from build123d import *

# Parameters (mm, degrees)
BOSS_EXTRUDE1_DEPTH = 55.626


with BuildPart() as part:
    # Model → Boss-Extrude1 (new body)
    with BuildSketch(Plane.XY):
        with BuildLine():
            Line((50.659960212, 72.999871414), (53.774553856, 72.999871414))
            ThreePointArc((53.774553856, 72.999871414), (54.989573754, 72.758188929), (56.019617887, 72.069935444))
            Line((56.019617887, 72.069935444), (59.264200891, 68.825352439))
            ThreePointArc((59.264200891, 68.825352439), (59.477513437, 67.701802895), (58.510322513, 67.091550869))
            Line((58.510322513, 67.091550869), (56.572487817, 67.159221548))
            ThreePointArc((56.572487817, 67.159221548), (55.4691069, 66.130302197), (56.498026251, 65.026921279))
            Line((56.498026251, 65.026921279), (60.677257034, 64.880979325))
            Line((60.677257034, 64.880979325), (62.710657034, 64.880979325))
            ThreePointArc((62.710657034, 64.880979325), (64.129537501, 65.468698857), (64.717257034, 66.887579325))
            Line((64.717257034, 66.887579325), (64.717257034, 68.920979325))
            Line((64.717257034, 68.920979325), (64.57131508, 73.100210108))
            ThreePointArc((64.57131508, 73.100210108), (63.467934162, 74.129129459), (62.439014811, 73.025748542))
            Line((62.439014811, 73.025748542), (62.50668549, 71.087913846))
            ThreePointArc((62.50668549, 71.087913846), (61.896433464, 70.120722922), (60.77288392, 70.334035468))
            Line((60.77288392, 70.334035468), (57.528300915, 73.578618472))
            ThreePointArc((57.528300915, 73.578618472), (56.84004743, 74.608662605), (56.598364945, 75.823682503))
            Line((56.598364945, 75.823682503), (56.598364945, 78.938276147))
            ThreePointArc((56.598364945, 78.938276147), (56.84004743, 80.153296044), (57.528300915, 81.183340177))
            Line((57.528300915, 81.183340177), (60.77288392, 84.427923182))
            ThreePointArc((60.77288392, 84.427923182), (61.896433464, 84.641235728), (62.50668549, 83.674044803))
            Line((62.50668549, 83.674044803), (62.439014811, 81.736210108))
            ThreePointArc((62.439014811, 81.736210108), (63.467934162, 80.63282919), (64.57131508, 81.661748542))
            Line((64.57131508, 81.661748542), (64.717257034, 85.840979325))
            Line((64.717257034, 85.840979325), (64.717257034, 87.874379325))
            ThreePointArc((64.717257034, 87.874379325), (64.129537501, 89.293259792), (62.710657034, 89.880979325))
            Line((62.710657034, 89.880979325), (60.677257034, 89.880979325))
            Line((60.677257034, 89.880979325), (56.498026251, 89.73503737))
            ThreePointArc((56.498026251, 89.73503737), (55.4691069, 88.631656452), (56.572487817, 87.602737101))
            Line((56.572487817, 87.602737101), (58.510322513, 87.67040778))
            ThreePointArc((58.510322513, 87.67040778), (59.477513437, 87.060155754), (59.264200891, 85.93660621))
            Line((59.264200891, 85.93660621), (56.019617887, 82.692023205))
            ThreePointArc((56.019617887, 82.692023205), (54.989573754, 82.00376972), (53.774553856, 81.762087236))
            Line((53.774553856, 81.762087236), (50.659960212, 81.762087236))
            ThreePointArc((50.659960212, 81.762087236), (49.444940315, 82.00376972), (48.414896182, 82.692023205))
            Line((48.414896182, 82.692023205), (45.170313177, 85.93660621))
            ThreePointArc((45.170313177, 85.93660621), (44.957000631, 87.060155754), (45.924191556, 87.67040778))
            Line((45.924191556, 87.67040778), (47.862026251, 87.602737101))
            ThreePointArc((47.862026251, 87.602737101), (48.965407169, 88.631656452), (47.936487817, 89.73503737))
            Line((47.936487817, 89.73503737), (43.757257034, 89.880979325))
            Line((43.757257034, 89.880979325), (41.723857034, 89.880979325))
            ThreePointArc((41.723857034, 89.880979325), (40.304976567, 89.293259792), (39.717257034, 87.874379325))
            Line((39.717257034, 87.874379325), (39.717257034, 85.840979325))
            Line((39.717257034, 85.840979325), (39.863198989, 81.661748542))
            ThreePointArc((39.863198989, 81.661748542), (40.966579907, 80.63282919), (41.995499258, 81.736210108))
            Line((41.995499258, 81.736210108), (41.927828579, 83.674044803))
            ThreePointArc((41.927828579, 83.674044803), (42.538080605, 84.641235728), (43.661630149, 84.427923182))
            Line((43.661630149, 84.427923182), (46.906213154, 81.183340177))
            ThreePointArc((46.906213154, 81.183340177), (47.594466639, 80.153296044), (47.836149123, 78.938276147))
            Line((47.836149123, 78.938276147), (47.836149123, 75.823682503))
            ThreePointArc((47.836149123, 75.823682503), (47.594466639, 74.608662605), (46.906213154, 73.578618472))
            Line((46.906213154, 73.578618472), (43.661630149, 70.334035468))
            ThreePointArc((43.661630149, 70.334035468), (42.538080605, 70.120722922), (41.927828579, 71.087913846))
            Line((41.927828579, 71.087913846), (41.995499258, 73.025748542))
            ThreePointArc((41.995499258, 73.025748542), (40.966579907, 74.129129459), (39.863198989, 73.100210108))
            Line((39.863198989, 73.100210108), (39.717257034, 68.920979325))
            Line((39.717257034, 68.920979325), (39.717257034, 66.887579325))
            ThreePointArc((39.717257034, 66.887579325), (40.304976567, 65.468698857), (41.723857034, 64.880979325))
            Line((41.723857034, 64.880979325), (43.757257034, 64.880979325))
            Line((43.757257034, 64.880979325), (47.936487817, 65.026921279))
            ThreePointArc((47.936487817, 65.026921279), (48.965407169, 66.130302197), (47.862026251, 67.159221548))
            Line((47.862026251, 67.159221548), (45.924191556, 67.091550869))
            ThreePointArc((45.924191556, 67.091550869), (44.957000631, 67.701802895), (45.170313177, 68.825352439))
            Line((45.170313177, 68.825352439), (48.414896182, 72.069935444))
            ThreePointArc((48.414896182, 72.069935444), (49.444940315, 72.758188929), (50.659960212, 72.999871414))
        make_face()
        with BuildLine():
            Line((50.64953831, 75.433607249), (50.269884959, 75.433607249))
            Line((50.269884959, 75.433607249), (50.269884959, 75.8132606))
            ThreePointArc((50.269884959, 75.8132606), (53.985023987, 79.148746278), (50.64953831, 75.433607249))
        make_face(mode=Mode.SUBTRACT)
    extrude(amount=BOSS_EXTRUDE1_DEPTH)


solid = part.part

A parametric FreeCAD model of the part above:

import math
import FreeCAD as App
import Part
import Sketcher

V = App.Vector
Q = App.Units.Quantity

doc = App.newDocument("Part")
body = doc.addObject("PartDesign::Body", "Body")

sketch1 = body.newObject("Sketcher::SketchObject", "Sketch")
sketch1.AttachmentSupport = (doc.getObject("XY_Plane"), [""])
sketch1.MapMode = "FlatFace"
sketch1.addGeometry(Part.LineSegment(V(50.65996, 72.999871, 0), V(53.774554, 72.999871, 0)), False)
sketch1.addGeometry(Part.ArcOfCircle(Part.Circle(V(53.774554, 69.824871, 0), V(0, 0, 1), 3.175), math.radians(45), math.radians(90)), False)
sketch1.addGeometry(Part.LineSegment(V(56.019618, 72.069935, 0), V(59.264201, 68.825352, 0)), False)
sketch1.addGeometry(Part.ArcOfCircle(Part.Circle(V(58.54578, 68.106932, 0), V(0, 0, 1), 1.016), math.radians(-92), math.radians(45)), False)
sketch1.addGeometry(Part.LineSegment(V(58.510323, 67.091551, 0), V(56.572488, 67.159222, 0)), False)
sketch1.addGeometry(Part.ArcOfCircle(Part.Circle(V(56.535257, 66.093071, 0), V(0, 0, 1), 1.0668), math.radians(88), math.radians(268)), False)
sketch1.addGeometry(Part.LineSegment(V(56.498026, 65.026921, 0), V(60.677257, 64.880979, 0)), False)
sketch1.addGeometry(Part.LineSegment(V(60.677257, 64.880979, 0), V(62.710657, 64.880979, 0)), False)
sketch1.addGeometry(Part.ArcOfCircle(Part.Circle(V(62.710657, 66.887579, 0), V(0, 0, 1), 2.0066), math.radians(-90), math.radians(0)), False)
sketch1.addGeometry(Part.LineSegment(V(64.717257, 66.887579, 0), V(64.717257, 68.920979, 0)), False)
sketch1.addGeometry(Part.LineSegment(V(64.717257, 68.920979, 0), V(64.571315, 73.10021, 0)), False)
sketch1.addGeometry(Part.ArcOfCircle(Part.Circle(V(63.505165, 73.062979, 0), V(0, 0, 1), 1.0668), math.radians(2), math.radians(182)), False)
sketch1.addGeometry(Part.LineSegment(V(62.439015, 73.025749, 0), V(62.506685, 71.087914, 0)), False)
sketch1.addGeometry(Part.ArcOfCircle(Part.Circle(V(61.491304, 71.052456, 0), V(0, 0, 1), 1.016), math.radians(-135), math.radians(2)), False)
sketch1.addGeometry(Part.LineSegment(V(60.772884, 70.334035, 0), V(57.528301, 73.578618, 0)), False)
sketch1.addGeometry(Part.ArcOfCircle(Part.Circle(V(59.773365, 75.823683, 0), V(0, 0, 1), 3.175), math.radians(-180), math.radians(-135)), False)
sketch1.addGeometry(Part.LineSegment(V(56.598365, 75.823683, 0), V(56.598365, 78.938276, 0)), False)
sketch1.addGeometry(Part.ArcOfCircle(Part.Circle(V(59.773365, 78.938276, 0), V(0, 0, 1), 3.175), math.radians(135), math.radians(180)), False)
sketch1.addGeometry(Part.LineSegment(V(57.528301, 81.18334, 0), V(60.772884, 84.427923, 0)), False)
sketch1.addGeometry(Part.ArcOfCircle(Part.Circle(V(61.491304, 83.709503, 0), V(0, 0, 1), 1.016), math.radians(-2), math.radians(135)), False)
sketch1.addGeometry(Part.LineSegment(V(62.506685, 83.674045, 0), V(62.439015, 81.73621, 0)), False)
sketch1.addGeometry(Part.ArcOfCircle(Part.Circle(V(63.505165, 81.698979, 0), V(0, 0, 1), 1.0668), math.radians(178), math.radians(358)), False)
sketch1.addGeometry(Part.LineSegment(V(64.571315, 81.661749, 0), V(64.717257, 85.840979, 0)), False)
sketch1.addGeometry(Part.LineSegment(V(64.717257, 85.840979, 0), V(64.717257, 87.874379, 0)), False)
sketch1.addGeometry(Part.ArcOfCircle(Part.Circle(V(62.710657, 87.874379, 0), V(0, 0, 1), 2.0066), math.radians(0), math.radians(90)), False)
sketch1.addGeometry(Part.LineSegment(V(62.710657, 89.880979, 0), V(60.677257, 89.880979, 0)), False)
sketch1.addGeometry(Part.LineSegment(V(60.677257, 89.880979, 0), V(56.498026, 89.735037, 0)), False)
sketch1.addGeometry(Part.ArcOfCircle(Part.Circle(V(56.535257, 88.668887, 0), V(0, 0, 1), 1.0668), math.radians(92), math.radians(272)), False)
sketch1.addGeometry(Part.LineSegment(V(56.572488, 87.602737, 0), V(58.510323, 87.670408, 0)), False)
sketch1.addGeometry(Part.ArcOfCircle(Part.Circle(V(58.54578, 86.655027, 0), V(0, 0, 1), 1.016), math.radians(-45), math.radians(92)), False)
sketch1.addGeometry(Part.LineSegment(V(59.264201, 85.936606, 0), V(56.019618, 82.692023, 0)), False)
sketch1.addGeometry(Part.ArcOfCircle(Part.Circle(V(53.774554, 84.937087, 0), V(0, 0, 1), 3.175), math.radians(-90), math.radians(-45)), False)
sketch1.addGeometry(Part.LineSegment(V(53.774554, 81.762087, 0), V(50.65996, 81.762087, 0)), False)
sketch1.addGeometry(Part.ArcOfCircle(Part.Circle(V(50.65996, 84.937087, 0), V(0, 0, 1), 3.175), math.radians(-135), math.radians(-90)), False)
sketch1.addGeometry(Part.LineSegment(V(48.414896, 82.692023, 0), V(45.170313, 85.936606, 0)), False)
sketch1.addGeometry(Part.ArcOfCircle(Part.Circle(V(45.888734, 86.655027, 0), V(0, 0, 1), 1.016), math.radians(88), math.radians(225)), False)
sketch1.addGeometry(Part.LineSegment(V(45.924192, 87.670408, 0), V(47.862026, 87.602737, 0)), False)
sketch1.addGeometry(Part.ArcOfCircle(Part.Circle(V(47.899257, 88.668887, 0), V(0, 0, 1), 1.0668), math.radians(-92), math.radians(88)), False)
sketch1.addGeometry(Part.LineSegment(V(47.936488, 89.735037, 0), V(43.757257, 89.880979, 0)), False)
sketch1.addGeometry(Part.LineSegment(V(43.757257, 89.880979, 0), V(41.723857, 89.880979, 0)), False)
sketch1.addGeometry(Part.ArcOfCircle(Part.Circle(V(41.723857, 87.874379, 0), V(0, 0, 1), 2.0066), math.radians(90), math.radians(180)), False)
sketch1.addGeometry(Part.LineSegment(V(39.717257, 87.874379, 0), V(39.717257, 85.840979, 0)), False)
sketch1.addGeometry(Part.LineSegment(V(39.717257, 85.840979, 0), V(39.863199, 81.661749, 0)), False)
sketch1.addGeometry(Part.ArcOfCircle(Part.Circle(V(40.929349, 81.698979, 0), V(0, 0, 1), 1.0668), math.radians(-178), math.radians(2)), False)
sketch1.addGeometry(Part.LineSegment(V(41.995499, 81.73621, 0), V(41.927829, 83.674045, 0)), False)
sketch1.addGeometry(Part.ArcOfCircle(Part.Circle(V(42.94321, 83.709503, 0), V(0, 0, 1), 1.016), math.radians(45), math.radians(182)), False)
sketch1.addGeometry(Part.LineSegment(V(43.66163, 84.427923, 0), V(46.906213, 81.18334, 0)), False)
sketch1.addGeometry(Part.ArcOfCircle(Part.Circle(V(44.661149, 78.938276, 0), V(0, 0, 1), 3.175), math.radians(0), math.radians(45)), False)
sketch1.addGeometry(Part.LineSegment(V(47.836149, 78.938276, 0), V(47.836149, 75.823683, 0)), False)
sketch1.addGeometry(Part.ArcOfCircle(Part.Circle(V(44.661149, 75.823683, 0), V(0, 0, 1), 3.175), math.radians(-45), math.radians(0)), False)
sketch1.addGeometry(Part.LineSegment(V(46.906213, 73.578618, 0), V(43.66163, 70.334035, 0)), False)
sketch1.addGeometry(Part.ArcOfCircle(Part.Circle(V(42.94321, 71.052456, 0), V(0, 0, 1), 1.016), math.radians(178), math.radians(315)), False)
sketch1.addGeometry(Part.LineSegment(V(41.927829, 71.087914, 0), V(41.995499, 73.025749, 0)), False)
sketch1.addGeometry(Part.ArcOfCircle(Part.Circle(V(40.929349, 73.062979, 0), V(0, 0, 1), 1.0668), math.radians(-2), math.radians(178)), False)
sketch1.addGeometry(Part.LineSegment(V(39.863199, 73.10021, 0), V(39.717257, 68.920979, 0)), False)
sketch1.addGeometry(Part.LineSegment(V(39.717257, 68.920979, 0), V(39.717257, 66.887579, 0)), False)
sketch1.addGeometry(Part.ArcOfCircle(Part.Circle(V(41.723857, 66.887579, 0), V(0, 0, 1), 2.0066), math.radians(180), math.radians(270)), False)
sketch1.addGeometry(Part.LineSegment(V(41.723857, 64.880979, 0), V(43.757257, 64.880979, 0)), False)
sketch1.addGeometry(Part.LineSegment(V(43.757257, 64.880979, 0), V(47.936488, 65.026921, 0)), False)
sketch1.addGeometry(Part.ArcOfCircle(Part.Circle(V(47.899257, 66.093071, 0), V(0, 0, 1), 1.0668), math.radians(-88), math.radians(92)), False)
sketch1.addGeometry(Part.LineSegment(V(47.862026, 67.159222, 0), V(45.924192, 67.091551, 0)), False)
sketch1.addGeometry(Part.ArcOfCircle(Part.Circle(V(45.888734, 68.106932, 0), V(0, 0, 1), 1.016), math.radians(135), math.radians(272)), False)
sketch1.addGeometry(Part.LineSegment(V(45.170313, 68.825352, 0), V(48.414896, 72.069935, 0)), False)
sketch1.addGeometry(Part.ArcOfCircle(Part.Circle(V(50.65996, 69.824871, 0), V(0, 0, 1), 3.175), math.radians(90), math.radians(135)), False)
sketch1.addGeometry(Part.ArcOfCircle(Part.Circle(V(52.217257, 77.380979, 0), V(0, 0, 1), 2.5), math.radians(-128.835568), math.radians(218.835568)), False)
sketch1.addGeometry(Part.LineSegment(V(50.649538, 75.433607, 0), V(50.269885, 75.433607, 0)), False)
sketch1.addGeometry(Part.LineSegment(V(50.269885, 75.433607, 0), V(50.269885, 75.813261, 0)), False)
sketch1.addConstraint(Sketcher.Constraint("Tangent", 0, 2, 1, 2))
sketch1.addConstraint(Sketcher.Constraint("Tangent", 1, 1, 2, 1))
sketch1.addConstraint(Sketcher.Constraint("Tangent", 2, 2, 3, 2))
sketch1.addConstraint(Sketcher.Constraint("Tangent", 3, 1, 4, 1))
sketch1.addConstraint(Sketcher.Constraint("Tangent", 4, 2, 5, 1))
sketch1.addConstraint(Sketcher.Constraint("Tangent", 5, 2, 6, 1))
sketch1.addConstraint(Sketcher.Constraint("Coincident", 6, 2, 7, 1))
sketch1.addConstraint(Sketcher.Constraint("Tangent", 7, 2, 8, 1))
sketch1.addConstraint(Sketcher.Constraint("Tangent", 8, 2, 9, 1))
sketch1.addConstraint(Sketcher.Constraint("Coincident", 9, 2, 10, 1))
sketch1.addConstraint(Sketcher.Constraint("Tangent", 10, 2, 11, 1))
sketch1.addConstraint(Sketcher.Constraint("Tangent", 11, 2, 12, 1))
sketch1.addConstraint(Sketcher.Constraint("Tangent", 12, 2, 13, 2))
sketch1.addConstraint(Sketcher.Constraint("Tangent", 13, 1, 14, 1))
sketch1.addConstraint(Sketcher.Constraint("Tangent", 14, 2, 15, 2))
sketch1.addConstraint(Sketcher.Constraint("Tangent", 15, 1, 16, 1))
sketch1.addConstraint(Sketcher.Constraint("Tangent", 16, 2, 17, 2))
sketch1.addConstraint(Sketcher.Constraint("Tangent", 17, 1, 18, 1))
sketch1.addConstraint(Sketcher.Constraint("Tangent", 18, 2, 19, 2))
sketch1.addConstraint(Sketcher.Constraint("Tangent", 19, 1, 20, 1))
sketch1.addConstraint(Sketcher.Constraint("Tangent", 20, 2, 21, 1))
sketch1.addConstraint(Sketcher.Constraint("Tangent", 21, 2, 22, 1))
sketch1.addConstraint(Sketcher.Constraint("Coincident", 22, 2, 23, 1))
sketch1.addConstraint(Sketcher.Constraint("Tangent", 23, 2, 24, 1))
sketch1.addConstraint(Sketcher.Constraint("Tangent", 24, 2, 25, 1))
sketch1.addConstraint(Sketcher.Constraint("Coincident", 25, 2, 26, 1))
sketch1.addConstraint(Sketcher.Constraint("Tangent", 26, 2, 27, 1))
sketch1.addConstraint(Sketcher.Constraint("Tangent", 27, 2, 28, 1))
sketch1.addConstraint(Sketcher.Constraint("Tangent", 28, 2, 29, 2))
sketch1.addConstraint(Sketcher.Constraint("Tangent", 29, 1, 30, 1))
sketch1.addConstraint(Sketcher.Constraint("Tangent", 30, 2, 31, 2))
sketch1.addConstraint(Sketcher.Constraint("Tangent", 31, 1, 32, 1))
sketch1.addConstraint(Sketcher.Constraint("Tangent", 32, 2, 33, 2))
sketch1.addConstraint(Sketcher.Constraint("Tangent", 33, 1, 34, 1))
sketch1.addConstraint(Sketcher.Constraint("Tangent", 34, 2, 35, 2))
sketch1.addConstraint(Sketcher.Constraint("Tangent", 35, 1, 36, 1))
sketch1.addConstraint(Sketcher.Constraint("Tangent", 36, 2, 37, 1))
sketch1.addConstraint(Sketcher.Constraint("Tangent", 37, 2, 38, 1))
sketch1.addConstraint(Sketcher.Constraint("Coincident", 38, 2, 39, 1))
sketch1.addConstraint(Sketcher.Constraint("Tangent", 39, 2, 40, 1))
sketch1.addConstraint(Sketcher.Constraint("Tangent", 40, 2, 41, 1))
sketch1.addConstraint(Sketcher.Constraint("Coincident", 41, 2, 42, 1))
sketch1.addConstraint(Sketcher.Constraint("Tangent", 42, 2, 43, 1))
sketch1.addConstraint(Sketcher.Constraint("Tangent", 43, 2, 44, 1))
sketch1.addConstraint(Sketcher.Constraint("Tangent", 44, 2, 45, 2))
sketch1.addConstraint(Sketcher.Constraint("Tangent", 45, 1, 46, 1))
sketch1.addConstraint(Sketcher.Constraint("Tangent", 46, 2, 47, 2))
sketch1.addConstraint(Sketcher.Constraint("Tangent", 47, 1, 48, 1))
sketch1.addConstraint(Sketcher.Constraint("Tangent", 48, 2, 49, 2))
sketch1.addConstraint(Sketcher.Constraint("Tangent", 49, 1, 50, 1))
sketch1.addConstraint(Sketcher.Constraint("Tangent", 50, 2, 51, 2))
sketch1.addConstraint(Sketcher.Constraint("Tangent", 51, 1, 52, 1))
sketch1.addConstraint(Sketcher.Constraint("Tangent", 52, 2, 53, 1))
sketch1.addConstraint(Sketcher.Constraint("Tangent", 53, 2, 54, 1))
sketch1.addConstraint(Sketcher.Constraint("Coincident", 54, 2, 55, 1))
sketch1.addConstraint(Sketcher.Constraint("Tangent", 55, 2, 56, 1))
sketch1.addConstraint(Sketcher.Constraint("Tangent", 56, 2, 57, 1))
sketch1.addConstraint(Sketcher.Constraint("Coincident", 57, 2, 58, 1))
sketch1.addConstraint(Sketcher.Constraint("Tangent", 58, 2, 59, 1))
sketch1.addConstraint(Sketcher.Constraint("Tangent", 59, 2, 60, 1))
sketch1.addConstraint(Sketcher.Constraint("Tangent", 60, 2, 61, 2))
sketch1.addConstraint(Sketcher.Constraint("Tangent", 61, 1, 62, 1))
sketch1.addConstraint(Sketcher.Constraint("Tangent", 62, 2, 63, 2))
sketch1.addConstraint(Sketcher.Constraint("Tangent", 63, 1, 0, 1))
sketch1.addConstraint(Sketcher.Constraint("Coincident", 64, 1, 65, 1))
sketch1.addConstraint(Sketcher.Constraint("Coincident", 65, 2, 66, 1))
sketch1.addConstraint(Sketcher.Constraint("Coincident", 66, 2, 64, 2))
sketch1.addConstraint(Sketcher.Constraint("Horizontal", 0))
sketch1.addConstraint(Sketcher.Constraint("Horizontal", 7))
sketch1.addConstraint(Sketcher.Constraint("Vertical", 9))
sketch1.addConstraint(Sketcher.Constraint("Vertical", 16))
sketch1.addConstraint(Sketcher.Constraint("Vertical", 23))
sketch1.addConstraint(Sketcher.Constraint("Horizontal", 25))
sketch1.addConstraint(Sketcher.Constraint("Horizontal", 32))
sketch1.addConstraint(Sketcher.Constraint("Horizontal", 39))
sketch1.addConstraint(Sketcher.Constraint("Vertical", 41))
sketch1.addConstraint(Sketcher.Constraint("Vertical", 48))
sketch1.addConstraint(Sketcher.Constraint("Vertical", 55))
sketch1.addConstraint(Sketcher.Constraint("Horizontal", 57))
sketch1.addConstraint(Sketcher.Constraint("Horizontal", 65))
sketch1.addConstraint(Sketcher.Constraint("Vertical", 66))
sketch1.addConstraint(Sketcher.Constraint("Equal", 5, 11))
sketch1.addConstraint(Sketcher.Constraint("Equal", 3, 13))
sketch1.addConstraint(Sketcher.Constraint("Equal", 1, 15))
sketch1.addConstraint(Sketcher.Constraint("Equal", 15, 17))
sketch1.addConstraint(Sketcher.Constraint("Equal", 13, 19))
sketch1.addConstraint(Sketcher.Constraint("Equal", 11, 21))
sketch1.addConstraint(Sketcher.Constraint("Equal", 8, 24))
sketch1.addConstraint(Sketcher.Constraint("Equal", 21, 27))
sketch1.addConstraint(Sketcher.Constraint("Equal", 19, 29))
sketch1.addConstraint(Sketcher.Constraint("Equal", 17, 31))
sketch1.addConstraint(Sketcher.Constraint("Equal", 31, 33))
sketch1.addConstraint(Sketcher.Constraint("Equal", 29, 35))
sketch1.addConstraint(Sketcher.Constraint("Equal", 27, 37))
sketch1.addConstraint(Sketcher.Constraint("Equal", 24, 40))
sketch1.addConstraint(Sketcher.Constraint("Equal", 37, 43))
sketch1.addConstraint(Sketcher.Constraint("Equal", 35, 45))
sketch1.addConstraint(Sketcher.Constraint("Equal", 33, 47))
sketch1.addConstraint(Sketcher.Constraint("Equal", 47, 49))
sketch1.addConstraint(Sketcher.Constraint("Equal", 45, 51))
sketch1.addConstraint(Sketcher.Constraint("Equal", 43, 53))
sketch1.addConstraint(Sketcher.Constraint("Equal", 40, 56))
sketch1.addConstraint(Sketcher.Constraint("Equal", 53, 59))
sketch1.addConstraint(Sketcher.Constraint("Equal", 51, 61))
sketch1.addConstraint(Sketcher.Constraint("Equal", 49, 63))
sketch1.addConstraint(Sketcher.Constraint("Parallel", 4, 6))
sketch1.addConstraint(Sketcher.Constraint("Parallel", 10, 12))
sketch1.addConstraint(Sketcher.Constraint("Parallel", 2, 14))
sketch1.addConstraint(Sketcher.Constraint("Perpendicular", 14, 18))
sketch1.addConstraint(Sketcher.Constraint("Perpendicular", 6, 20))
sketch1.addConstraint(Sketcher.Constraint("Parallel", 20, 22))
sketch1.addConstraint(Sketcher.Constraint("Perpendicular", 12, 26))
sketch1.addConstraint(Sketcher.Constraint("Parallel", 26, 28))
sketch1.addConstraint(Sketcher.Constraint("Parallel", 18, 30))
sketch1.addConstraint(Sketcher.Constraint("Perpendicular", 30, 34))
sketch1.addConstraint(Sketcher.Constraint("Perpendicular", 22, 36))
sketch1.addConstraint(Sketcher.Constraint("Parallel", 36, 38))
sketch1.addConstraint(Sketcher.Constraint("Perpendicular", 28, 42))
sketch1.addConstraint(Sketcher.Constraint("Parallel", 42, 44))
sketch1.addConstraint(Sketcher.Constraint("Parallel", 34, 46))
sketch1.addConstraint(Sketcher.Constraint("Perpendicular", 46, 50))
sketch1.addConstraint(Sketcher.Constraint("Perpendicular", 38, 52))
sketch1.addConstraint(Sketcher.Constraint("Parallel", 52, 54))
sketch1.addConstraint(Sketcher.Constraint("Perpendicular", 44, 58))
sketch1.addConstraint(Sketcher.Constraint("Parallel", 58, 60))
sketch1.addConstraint(Sketcher.Constraint("Parallel", 50, 62))
sketch1.addConstraint(Sketcher.Constraint("Horizontal", 29, 3, 35, 3))
sketch1.addConstraint(Sketcher.Constraint("Horizontal", 27, 3, 37, 3))
sketch1.addConstraint(Sketcher.Constraint("Horizontal", 24, 3, 40, 3))
sketch1.addConstraint(Sketcher.Constraint("Horizontal", 21, 3, 43, 3))
sketch1.addConstraint(Sketcher.Constraint("Horizontal", 19, 3, 45, 3))
sketch1.addConstraint(Sketcher.Constraint("Horizontal", 17, 3, 47, 3))
sketch1.addConstraint(Sketcher.Constraint("Horizontal", 15, 3, 49, 3))
sketch1.addConstraint(Sketcher.Constraint("Horizontal", 13, 3, 51, 3))
sketch1.addConstraint(Sketcher.Constraint("Horizontal", 11, 3, 53, 3))
sketch1.addConstraint(Sketcher.Constraint("Horizontal", 8, 3, 56, 3))
sketch1.addConstraint(Sketcher.Constraint("Horizontal", 5, 3, 59, 3))
sketch1.addConstraint(Sketcher.Constraint("Horizontal", 3, 3, 61, 3))
sketch1.addConstraint(Sketcher.Constraint("Horizontal", 30, 2, 33, 1))
sketch1.addConstraint(Sketcher.Constraint("Horizontal", 22, 2, 41, 2))
sketch1.addConstraint(Sketcher.Constraint("Horizontal", 21, 2, 42, 2))
sketch1.addConstraint(Sketcher.Constraint("Horizontal", 9, 2, 54, 2))
sketch1.addConstraint(Sketcher.Constraint("Vertical", 13, 3, 19, 3))
sketch1.addConstraint(Sketcher.Constraint("Vertical", 11, 3, 21, 3))
sketch1.addConstraint(Sketcher.Constraint("Vertical", 8, 3, 24, 3))
sketch1.addConstraint(Sketcher.Constraint("Vertical", 5, 3, 27, 3))
sketch1.addConstraint(Sketcher.Constraint("Vertical", 3, 3, 29, 3))
sketch1.addConstraint(Sketcher.Constraint("Vertical", 1, 3, 31, 3))
sketch1.addConstraint(Sketcher.Constraint("Vertical", 37, 3, 59, 3))
sketch1.addConstraint(Sketcher.Constraint("Vertical", 6, 2, 25, 2))
sketch1.addConstraint(Sketcher.Constraint("Equal", 25, 39))
sketch1.addConstraint(Sketcher.Constraint("Equal", 57, 9))
sketch1.addConstraint(Sketcher.Constraint("Equal", 32, 16))
sketch1.addConstraint(Sketcher.Constraint("Equal", 9, 23))
sketch1.addConstraint(Sketcher.Constraint("Equal", 65, 66))
sketch1.addConstraint(Sketcher.Constraint("Equal", 6, 10))
sketch1.addConstraint(Sketcher.Constraint("Equal", 4, 12))
sketch1.addConstraint(Sketcher.Constraint("Equal", 2, 14))
sketch1.addConstraint(Sketcher.Constraint("Radius", 3, Q("0.04 in")))
sketch1.addConstraint(Sketcher.Constraint("Angle", 4, Q("178 deg")))
sketch1.addConstraint(Sketcher.Constraint("Radius", 1, Q("0.125 in")))
sketch1.addConstraint(Sketcher.Constraint("Radius", 5, Q("0.042 in")))
sketch1.addConstraint(Sketcher.Constraint("Radius", 8, Q("0.079 in")))
sketch1.addConstraint(Sketcher.Constraint("Radius", 64, Q("2.5 mm")))
sketch1.addConstraint(Sketcher.Constraint("DistanceX", 7, 1, 7, 2, Q("2.0334 mm")))
sketch1.addConstraint(Sketcher.Constraint("DistanceX", -1, 1, 2, 2, Q("59.264201 mm")))
sketch1.addConstraint(Sketcher.Constraint("DistanceX", -1, 1, 14, 2, Q("57.528301 mm")))
sketch1.addConstraint(Sketcher.Constraint("DistanceX", -1, 1, 42, 2, Q("39.863199 mm")))
sketch1.addConstraint(Sketcher.Constraint("Distance", 6, Q("4.181778 mm")))
sketch1.addConstraint(Sketcher.Constraint("DistanceX", 0, 1, 0, 2, Q("3.114594 mm")))
sketch1.addConstraint(Sketcher.Constraint("DistanceX", 65, 2, 65, 1, Q("0.379653 mm")))
sketch1.addConstraint(Sketcher.Constraint("DistanceY", -1, 1, 1, 3, Q("69.824871 mm")))
sketch1.addConstraint(Sketcher.Constraint("DistanceY", -1, 1, 64, 3, Q("77.380979 mm")))
sketch1.addConstraint(Sketcher.Constraint("DistanceX", -1, 1, 64, 1, Q("50.649538 mm")))
pad1 = body.newObject("PartDesign::Pad", "Pad")
pad1.Profile = sketch1
pad1.Length = Q("2.19 in")

doc.recompute()
